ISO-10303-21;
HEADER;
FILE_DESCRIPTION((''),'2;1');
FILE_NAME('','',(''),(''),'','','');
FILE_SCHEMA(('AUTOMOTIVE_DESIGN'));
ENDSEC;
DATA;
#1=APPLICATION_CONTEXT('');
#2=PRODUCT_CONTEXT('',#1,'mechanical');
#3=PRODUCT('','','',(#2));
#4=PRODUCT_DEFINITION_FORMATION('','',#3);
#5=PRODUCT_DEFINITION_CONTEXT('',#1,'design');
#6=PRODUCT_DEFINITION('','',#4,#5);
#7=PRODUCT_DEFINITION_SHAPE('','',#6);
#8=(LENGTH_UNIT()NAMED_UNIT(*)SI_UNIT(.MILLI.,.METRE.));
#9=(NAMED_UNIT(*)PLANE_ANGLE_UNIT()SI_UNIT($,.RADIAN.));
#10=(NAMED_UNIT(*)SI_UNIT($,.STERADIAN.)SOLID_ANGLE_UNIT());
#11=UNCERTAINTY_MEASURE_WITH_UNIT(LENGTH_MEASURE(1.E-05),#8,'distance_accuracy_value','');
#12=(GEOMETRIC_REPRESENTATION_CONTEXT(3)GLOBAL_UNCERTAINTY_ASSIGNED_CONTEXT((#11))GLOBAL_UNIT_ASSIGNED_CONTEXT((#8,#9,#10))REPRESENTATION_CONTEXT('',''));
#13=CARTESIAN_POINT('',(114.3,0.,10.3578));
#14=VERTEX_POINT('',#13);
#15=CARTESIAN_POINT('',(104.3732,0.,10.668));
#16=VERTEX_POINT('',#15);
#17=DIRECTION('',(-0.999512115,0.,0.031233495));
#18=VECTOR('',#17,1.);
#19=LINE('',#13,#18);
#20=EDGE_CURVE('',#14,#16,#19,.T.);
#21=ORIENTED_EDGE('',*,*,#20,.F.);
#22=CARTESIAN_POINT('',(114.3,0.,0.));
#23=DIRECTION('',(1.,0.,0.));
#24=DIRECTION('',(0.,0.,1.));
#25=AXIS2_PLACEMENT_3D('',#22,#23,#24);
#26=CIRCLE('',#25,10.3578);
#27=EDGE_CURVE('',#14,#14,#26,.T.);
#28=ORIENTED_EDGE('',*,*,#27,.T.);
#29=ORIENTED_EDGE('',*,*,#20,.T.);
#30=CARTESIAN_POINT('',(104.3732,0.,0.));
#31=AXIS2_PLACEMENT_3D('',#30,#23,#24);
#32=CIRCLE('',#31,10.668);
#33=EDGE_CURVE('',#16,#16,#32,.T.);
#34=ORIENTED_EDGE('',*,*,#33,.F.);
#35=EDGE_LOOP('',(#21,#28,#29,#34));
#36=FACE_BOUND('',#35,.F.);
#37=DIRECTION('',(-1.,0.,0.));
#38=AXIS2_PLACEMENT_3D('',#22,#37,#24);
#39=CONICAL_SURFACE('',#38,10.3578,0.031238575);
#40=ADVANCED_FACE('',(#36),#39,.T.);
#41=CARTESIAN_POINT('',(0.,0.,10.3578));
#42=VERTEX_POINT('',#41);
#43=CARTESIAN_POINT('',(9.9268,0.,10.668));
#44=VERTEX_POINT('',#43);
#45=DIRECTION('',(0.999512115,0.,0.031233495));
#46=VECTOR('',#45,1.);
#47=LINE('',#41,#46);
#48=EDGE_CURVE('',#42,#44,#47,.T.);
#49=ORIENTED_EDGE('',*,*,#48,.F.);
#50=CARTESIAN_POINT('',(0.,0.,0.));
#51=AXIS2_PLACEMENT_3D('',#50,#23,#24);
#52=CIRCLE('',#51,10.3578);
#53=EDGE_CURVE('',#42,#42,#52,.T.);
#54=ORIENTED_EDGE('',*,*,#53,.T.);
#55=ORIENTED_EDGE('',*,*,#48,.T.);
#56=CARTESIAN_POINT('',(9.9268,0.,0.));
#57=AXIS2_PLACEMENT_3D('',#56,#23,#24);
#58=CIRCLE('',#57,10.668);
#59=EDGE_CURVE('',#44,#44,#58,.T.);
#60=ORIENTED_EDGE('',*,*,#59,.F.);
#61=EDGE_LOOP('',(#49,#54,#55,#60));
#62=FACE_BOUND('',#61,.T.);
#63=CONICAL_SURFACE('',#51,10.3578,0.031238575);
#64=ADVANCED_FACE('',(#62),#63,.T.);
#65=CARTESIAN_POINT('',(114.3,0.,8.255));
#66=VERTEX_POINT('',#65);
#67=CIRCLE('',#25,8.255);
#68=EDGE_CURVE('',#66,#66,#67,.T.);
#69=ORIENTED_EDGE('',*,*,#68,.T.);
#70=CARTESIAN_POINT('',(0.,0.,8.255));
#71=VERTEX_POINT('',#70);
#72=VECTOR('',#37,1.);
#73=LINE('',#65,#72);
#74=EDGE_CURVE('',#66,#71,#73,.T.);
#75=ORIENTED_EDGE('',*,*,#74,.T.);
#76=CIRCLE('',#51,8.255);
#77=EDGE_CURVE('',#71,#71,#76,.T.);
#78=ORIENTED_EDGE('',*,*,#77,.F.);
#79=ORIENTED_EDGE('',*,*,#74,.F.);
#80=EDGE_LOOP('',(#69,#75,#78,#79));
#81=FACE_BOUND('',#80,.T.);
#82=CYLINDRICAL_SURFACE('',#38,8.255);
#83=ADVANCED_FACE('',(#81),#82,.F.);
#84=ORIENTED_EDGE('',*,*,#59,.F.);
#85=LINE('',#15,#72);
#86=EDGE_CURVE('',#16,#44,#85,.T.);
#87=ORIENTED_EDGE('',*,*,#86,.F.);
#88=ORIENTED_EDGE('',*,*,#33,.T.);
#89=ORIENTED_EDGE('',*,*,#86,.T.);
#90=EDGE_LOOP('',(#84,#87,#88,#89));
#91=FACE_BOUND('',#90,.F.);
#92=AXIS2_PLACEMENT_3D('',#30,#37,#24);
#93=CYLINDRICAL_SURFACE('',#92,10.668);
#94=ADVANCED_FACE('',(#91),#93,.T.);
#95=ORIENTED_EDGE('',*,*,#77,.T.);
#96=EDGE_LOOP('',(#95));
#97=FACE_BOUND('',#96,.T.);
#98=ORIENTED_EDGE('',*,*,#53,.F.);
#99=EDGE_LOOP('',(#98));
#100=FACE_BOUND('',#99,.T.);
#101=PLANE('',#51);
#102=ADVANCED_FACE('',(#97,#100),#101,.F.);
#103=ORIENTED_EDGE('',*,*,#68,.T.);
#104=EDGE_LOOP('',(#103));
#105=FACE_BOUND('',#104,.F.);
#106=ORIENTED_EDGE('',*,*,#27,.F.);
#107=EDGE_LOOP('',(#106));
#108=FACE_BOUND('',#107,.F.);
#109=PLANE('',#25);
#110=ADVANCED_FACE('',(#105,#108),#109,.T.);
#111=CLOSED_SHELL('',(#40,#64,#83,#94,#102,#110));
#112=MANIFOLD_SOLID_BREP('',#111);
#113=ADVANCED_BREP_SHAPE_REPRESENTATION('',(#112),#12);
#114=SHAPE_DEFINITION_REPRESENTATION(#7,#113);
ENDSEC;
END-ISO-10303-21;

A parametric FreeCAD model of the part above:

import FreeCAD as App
import Part
import Sketcher
Q = App.Units.Quantity


def add_polygon(sketch, points):
    """Adds a closed chain of lines whose ends are joined by coincident constraints."""
    first, n = sketch.GeometryCount, len(points)
    for a, b in zip(points, points[1:] + points[:1]):
        sketch.addGeometry(Part.LineSegment(App.Vector(*a, 0), App.Vector(*b, 0)), False)
    for i in range(n):
        sketch.addConstraint(Sketcher.Constraint("Coincident", first + i, 2, first + (i + 1) % n, 1))

doc = App.newDocument("Part")
body = doc.addObject("PartDesign::Body", "Body")

# Sketch on XZ plane
sketch1 = doc.addObject("Sketcher::SketchObject", "Sketch")
body.addObject(sketch1)
sketch1.AttachmentSupport = (doc.XZ_Plane, [""])
sketch1.MapMode = "FlatFace"
add_polygon(sketch1, [(114.3, 10.4), (114.3, 8.3), (0, 8.3), (0, 10.4), (9.9, 10.7), (104.4, 10.7)])  # lines 0-5
sketch1.addConstraint([
    Sketcher.Constraint("Vertical", 0),
    Sketcher.Constraint("Horizontal", 1),
    Sketcher.Constraint("Vertical", 2),
    Sketcher.Constraint("Horizontal", 4),
    Sketcher.Constraint("PointOnObject", 1, 2, -2),
    Sketcher.Constraint("Horizontal", 2, 2, 5, 2),
    Sketcher.Constraint("Equal", 3, 5),
    Sketcher.Constraint("DistanceX", 1, 2, 1, 1, Q("4.5 in")),
    Sketcher.Constraint("Angle", 3, Q("1.7898 deg")),
    Sketcher.Constraint("DistanceY", -1, 1, 3, 2, Q("0.42 in")),
    Sketcher.Constraint("Distance", 3, Q("0.391 in")),
    Sketcher.Constraint("DistanceY", -1, 1, 0, 2, Q("0.325 in")),
])
revolution = doc.addObject("PartDesign::Revolution", "Revolution")
body.addObject(revolution)
revolution.Profile = sketch1
revolution.ReferenceAxis = (sketch1, ["H_Axis"])
revolution.Angle = 360

doc.recompute()
